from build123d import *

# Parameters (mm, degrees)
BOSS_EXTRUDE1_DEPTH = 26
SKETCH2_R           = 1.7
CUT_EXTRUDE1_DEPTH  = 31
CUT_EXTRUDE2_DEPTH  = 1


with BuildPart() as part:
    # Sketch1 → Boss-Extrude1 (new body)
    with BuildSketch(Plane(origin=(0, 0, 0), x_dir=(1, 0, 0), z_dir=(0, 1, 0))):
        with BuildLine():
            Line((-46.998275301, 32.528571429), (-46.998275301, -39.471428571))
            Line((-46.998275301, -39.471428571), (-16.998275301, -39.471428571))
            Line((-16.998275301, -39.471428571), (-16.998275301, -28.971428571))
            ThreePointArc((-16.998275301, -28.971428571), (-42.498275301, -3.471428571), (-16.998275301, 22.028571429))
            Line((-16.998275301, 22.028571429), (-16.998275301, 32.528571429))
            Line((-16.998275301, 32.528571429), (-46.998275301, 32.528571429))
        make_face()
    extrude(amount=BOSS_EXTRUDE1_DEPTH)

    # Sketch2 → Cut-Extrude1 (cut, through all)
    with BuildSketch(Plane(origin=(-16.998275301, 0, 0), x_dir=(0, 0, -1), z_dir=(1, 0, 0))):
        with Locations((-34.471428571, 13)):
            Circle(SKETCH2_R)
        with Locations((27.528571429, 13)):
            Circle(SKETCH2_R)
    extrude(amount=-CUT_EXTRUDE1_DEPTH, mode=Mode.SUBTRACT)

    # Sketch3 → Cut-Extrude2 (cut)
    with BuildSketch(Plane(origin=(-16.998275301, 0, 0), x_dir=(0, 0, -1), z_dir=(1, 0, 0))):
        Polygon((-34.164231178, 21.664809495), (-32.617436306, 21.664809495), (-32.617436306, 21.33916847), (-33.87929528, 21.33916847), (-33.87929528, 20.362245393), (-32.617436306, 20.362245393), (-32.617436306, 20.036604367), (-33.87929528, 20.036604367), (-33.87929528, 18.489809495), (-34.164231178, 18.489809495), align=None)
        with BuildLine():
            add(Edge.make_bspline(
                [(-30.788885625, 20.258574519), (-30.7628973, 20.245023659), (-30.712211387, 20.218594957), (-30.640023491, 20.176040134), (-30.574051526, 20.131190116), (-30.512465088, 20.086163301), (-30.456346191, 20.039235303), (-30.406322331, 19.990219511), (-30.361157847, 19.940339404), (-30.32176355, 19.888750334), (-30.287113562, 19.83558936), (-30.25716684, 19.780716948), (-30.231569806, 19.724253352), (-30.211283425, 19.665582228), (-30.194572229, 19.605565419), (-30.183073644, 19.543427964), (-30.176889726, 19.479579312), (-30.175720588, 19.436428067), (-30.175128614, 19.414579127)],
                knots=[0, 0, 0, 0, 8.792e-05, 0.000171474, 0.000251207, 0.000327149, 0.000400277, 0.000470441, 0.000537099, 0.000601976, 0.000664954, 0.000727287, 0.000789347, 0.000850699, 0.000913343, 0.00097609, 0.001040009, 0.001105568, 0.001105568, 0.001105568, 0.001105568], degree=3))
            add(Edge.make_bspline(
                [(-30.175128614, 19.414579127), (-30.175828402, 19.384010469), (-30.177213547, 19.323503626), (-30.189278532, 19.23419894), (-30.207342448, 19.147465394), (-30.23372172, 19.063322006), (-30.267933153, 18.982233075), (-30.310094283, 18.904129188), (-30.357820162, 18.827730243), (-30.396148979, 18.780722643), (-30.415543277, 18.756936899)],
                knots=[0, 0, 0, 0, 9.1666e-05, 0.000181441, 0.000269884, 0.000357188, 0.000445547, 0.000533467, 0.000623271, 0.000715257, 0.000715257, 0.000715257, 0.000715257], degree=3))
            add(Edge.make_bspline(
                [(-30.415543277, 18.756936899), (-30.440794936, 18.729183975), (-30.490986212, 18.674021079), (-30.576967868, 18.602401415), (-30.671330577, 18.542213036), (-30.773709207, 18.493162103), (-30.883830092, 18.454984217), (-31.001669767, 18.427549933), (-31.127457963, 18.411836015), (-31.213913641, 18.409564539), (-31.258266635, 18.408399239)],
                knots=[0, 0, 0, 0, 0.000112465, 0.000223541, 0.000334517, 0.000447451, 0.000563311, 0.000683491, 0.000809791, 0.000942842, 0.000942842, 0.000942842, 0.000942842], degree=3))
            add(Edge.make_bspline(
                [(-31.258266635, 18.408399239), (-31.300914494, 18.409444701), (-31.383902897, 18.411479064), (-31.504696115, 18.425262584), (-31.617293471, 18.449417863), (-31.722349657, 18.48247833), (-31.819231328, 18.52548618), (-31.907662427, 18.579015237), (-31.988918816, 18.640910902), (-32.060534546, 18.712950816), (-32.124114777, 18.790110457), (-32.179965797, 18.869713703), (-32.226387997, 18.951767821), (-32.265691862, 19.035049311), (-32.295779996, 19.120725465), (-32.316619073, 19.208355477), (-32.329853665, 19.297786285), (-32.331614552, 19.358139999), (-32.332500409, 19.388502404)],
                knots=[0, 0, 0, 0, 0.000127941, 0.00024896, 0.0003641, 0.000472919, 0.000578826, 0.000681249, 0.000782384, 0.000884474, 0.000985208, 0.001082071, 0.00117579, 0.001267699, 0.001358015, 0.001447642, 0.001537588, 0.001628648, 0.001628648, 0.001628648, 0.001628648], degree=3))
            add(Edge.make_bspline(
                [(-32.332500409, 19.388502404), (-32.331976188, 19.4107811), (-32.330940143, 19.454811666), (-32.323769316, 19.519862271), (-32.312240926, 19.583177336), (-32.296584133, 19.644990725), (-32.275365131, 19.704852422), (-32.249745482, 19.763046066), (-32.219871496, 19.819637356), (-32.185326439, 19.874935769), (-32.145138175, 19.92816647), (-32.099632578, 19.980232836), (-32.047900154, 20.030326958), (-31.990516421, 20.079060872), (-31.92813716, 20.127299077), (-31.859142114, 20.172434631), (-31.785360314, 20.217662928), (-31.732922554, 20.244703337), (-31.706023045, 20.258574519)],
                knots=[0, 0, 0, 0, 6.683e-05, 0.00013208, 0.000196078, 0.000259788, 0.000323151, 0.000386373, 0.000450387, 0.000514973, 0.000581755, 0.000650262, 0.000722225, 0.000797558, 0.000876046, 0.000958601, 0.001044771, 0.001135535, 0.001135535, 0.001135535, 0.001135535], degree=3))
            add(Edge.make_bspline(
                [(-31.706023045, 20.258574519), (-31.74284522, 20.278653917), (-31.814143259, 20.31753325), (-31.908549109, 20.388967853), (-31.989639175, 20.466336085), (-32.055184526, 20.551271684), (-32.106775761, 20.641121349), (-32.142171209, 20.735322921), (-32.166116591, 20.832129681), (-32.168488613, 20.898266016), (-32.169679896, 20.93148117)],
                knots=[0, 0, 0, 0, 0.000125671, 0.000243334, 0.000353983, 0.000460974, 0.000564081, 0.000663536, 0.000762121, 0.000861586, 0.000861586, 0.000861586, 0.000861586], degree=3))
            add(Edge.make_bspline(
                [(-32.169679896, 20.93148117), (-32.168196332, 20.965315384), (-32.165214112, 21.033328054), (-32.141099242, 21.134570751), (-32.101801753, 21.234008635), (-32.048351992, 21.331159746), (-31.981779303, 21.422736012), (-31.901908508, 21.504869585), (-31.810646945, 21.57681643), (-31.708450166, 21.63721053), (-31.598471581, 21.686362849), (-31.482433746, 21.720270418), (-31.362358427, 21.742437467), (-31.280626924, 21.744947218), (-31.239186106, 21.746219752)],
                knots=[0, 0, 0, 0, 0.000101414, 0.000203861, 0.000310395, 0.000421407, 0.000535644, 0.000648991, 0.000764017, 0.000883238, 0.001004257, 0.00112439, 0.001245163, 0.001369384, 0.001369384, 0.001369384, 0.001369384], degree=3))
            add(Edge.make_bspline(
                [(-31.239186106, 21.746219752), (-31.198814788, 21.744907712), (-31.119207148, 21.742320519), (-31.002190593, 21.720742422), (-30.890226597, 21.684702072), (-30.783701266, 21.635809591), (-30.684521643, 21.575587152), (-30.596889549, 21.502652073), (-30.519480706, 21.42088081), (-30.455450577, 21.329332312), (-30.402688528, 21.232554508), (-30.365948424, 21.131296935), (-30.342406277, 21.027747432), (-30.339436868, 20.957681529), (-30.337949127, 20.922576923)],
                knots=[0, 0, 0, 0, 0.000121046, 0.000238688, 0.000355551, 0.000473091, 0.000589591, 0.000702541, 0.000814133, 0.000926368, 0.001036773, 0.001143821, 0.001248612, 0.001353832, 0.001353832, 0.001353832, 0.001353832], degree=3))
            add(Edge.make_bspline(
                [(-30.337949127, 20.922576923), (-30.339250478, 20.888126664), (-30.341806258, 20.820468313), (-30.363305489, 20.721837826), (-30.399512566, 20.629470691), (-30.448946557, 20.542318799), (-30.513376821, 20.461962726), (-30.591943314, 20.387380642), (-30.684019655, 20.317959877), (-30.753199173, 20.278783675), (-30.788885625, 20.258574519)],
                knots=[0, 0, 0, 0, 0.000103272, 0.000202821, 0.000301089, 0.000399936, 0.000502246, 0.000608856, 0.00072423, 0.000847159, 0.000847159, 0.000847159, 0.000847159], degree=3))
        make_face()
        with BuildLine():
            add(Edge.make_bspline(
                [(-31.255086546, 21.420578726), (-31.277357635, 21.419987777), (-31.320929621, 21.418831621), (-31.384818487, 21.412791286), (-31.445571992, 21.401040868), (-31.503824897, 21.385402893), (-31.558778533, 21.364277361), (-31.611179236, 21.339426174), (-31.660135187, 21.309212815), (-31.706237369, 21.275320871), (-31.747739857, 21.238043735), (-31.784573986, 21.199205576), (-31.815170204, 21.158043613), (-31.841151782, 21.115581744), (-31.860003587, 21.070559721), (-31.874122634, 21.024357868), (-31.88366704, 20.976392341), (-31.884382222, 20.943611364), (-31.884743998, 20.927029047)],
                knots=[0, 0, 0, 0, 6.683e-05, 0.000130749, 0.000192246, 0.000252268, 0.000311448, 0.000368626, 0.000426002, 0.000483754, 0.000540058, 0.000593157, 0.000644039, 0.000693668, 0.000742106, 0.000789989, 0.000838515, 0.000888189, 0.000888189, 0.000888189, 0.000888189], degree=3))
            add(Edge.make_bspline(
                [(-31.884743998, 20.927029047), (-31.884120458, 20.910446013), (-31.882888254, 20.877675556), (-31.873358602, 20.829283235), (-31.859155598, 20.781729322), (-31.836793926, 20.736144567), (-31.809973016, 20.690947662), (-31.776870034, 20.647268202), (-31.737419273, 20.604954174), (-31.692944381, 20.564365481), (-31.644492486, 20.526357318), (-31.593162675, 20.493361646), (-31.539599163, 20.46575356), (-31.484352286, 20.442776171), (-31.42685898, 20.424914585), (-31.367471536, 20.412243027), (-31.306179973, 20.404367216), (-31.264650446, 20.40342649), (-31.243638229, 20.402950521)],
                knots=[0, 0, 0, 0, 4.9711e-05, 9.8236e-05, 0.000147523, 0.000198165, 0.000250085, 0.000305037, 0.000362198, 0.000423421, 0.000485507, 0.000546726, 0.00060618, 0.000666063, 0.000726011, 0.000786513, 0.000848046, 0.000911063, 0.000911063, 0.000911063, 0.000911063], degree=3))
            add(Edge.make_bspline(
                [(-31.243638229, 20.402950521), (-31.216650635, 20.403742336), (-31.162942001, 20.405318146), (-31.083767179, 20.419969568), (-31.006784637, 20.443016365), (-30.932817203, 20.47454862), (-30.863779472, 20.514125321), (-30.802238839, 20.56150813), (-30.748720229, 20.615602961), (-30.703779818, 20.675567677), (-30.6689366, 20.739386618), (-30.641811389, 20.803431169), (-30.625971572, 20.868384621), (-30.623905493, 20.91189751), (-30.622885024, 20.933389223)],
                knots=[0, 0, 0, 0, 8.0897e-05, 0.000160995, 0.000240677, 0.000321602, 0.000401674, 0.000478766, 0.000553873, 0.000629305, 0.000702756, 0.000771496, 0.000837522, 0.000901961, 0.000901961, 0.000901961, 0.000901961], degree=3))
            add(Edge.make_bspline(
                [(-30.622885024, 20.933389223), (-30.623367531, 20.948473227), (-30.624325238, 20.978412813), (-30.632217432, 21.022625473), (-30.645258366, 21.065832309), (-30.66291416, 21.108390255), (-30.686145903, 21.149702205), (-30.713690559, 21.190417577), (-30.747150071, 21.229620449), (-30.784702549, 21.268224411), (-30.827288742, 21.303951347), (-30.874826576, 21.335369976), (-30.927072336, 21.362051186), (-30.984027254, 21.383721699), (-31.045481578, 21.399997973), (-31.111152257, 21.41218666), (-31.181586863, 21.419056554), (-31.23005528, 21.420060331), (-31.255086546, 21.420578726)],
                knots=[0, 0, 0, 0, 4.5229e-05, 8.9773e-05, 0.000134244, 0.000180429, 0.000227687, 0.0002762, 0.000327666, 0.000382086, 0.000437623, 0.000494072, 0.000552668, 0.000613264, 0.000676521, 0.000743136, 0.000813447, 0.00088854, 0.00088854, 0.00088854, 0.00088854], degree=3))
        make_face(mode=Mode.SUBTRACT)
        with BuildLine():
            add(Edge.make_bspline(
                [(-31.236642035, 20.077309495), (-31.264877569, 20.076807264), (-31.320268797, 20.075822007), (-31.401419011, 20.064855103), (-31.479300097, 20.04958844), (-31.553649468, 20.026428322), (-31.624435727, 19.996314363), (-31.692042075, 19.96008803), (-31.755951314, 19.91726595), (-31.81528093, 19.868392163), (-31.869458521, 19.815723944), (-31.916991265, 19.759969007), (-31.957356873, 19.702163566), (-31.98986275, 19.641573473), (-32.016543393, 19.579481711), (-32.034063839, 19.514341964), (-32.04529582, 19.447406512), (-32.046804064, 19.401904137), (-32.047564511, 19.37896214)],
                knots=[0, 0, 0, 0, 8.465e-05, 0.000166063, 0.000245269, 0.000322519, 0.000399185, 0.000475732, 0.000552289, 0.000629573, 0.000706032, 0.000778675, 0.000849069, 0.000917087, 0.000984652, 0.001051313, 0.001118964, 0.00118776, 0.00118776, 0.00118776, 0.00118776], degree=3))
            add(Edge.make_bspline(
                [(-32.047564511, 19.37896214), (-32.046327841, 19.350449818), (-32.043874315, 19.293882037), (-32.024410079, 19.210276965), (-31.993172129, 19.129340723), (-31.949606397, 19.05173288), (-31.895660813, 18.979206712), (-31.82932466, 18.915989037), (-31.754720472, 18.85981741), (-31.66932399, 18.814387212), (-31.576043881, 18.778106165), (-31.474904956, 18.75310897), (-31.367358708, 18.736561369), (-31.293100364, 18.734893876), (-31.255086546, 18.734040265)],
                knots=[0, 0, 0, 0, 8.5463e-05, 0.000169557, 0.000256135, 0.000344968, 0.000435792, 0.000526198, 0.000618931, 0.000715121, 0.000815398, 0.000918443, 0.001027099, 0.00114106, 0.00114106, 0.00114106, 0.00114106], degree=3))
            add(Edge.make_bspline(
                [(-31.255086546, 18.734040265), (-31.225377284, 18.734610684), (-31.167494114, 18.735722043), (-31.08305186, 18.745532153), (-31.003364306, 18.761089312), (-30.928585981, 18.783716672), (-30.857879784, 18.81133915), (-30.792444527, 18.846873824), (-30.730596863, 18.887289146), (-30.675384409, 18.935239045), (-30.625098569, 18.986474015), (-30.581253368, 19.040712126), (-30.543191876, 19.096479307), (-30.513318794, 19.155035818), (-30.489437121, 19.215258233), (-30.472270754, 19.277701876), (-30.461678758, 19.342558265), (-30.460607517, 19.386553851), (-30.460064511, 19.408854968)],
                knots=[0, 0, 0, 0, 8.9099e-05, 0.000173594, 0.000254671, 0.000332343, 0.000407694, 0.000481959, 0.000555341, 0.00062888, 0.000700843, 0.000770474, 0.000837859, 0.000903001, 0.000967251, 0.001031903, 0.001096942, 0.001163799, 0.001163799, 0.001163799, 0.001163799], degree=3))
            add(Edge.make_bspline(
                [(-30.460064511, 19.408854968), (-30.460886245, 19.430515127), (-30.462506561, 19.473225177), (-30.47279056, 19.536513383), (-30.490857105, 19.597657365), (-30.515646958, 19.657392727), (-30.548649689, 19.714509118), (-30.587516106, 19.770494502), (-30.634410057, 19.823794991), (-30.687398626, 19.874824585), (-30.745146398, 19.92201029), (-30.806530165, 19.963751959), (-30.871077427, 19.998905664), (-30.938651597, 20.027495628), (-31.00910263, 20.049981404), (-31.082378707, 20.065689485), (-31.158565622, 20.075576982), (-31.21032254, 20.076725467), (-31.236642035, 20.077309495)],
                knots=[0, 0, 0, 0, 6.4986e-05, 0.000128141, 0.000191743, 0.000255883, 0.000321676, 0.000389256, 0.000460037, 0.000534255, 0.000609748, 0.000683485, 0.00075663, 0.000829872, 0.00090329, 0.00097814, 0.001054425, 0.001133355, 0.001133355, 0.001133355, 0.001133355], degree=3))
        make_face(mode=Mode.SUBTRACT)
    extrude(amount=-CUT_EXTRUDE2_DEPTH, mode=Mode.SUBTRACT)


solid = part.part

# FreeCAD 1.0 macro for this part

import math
import FreeCAD as App
import Part
import Sketcher


def add_polygon(sketch, points):
    """Adds a closed chain of lines whose ends are joined by coincident constraints."""
    first, n = sketch.GeometryCount, len(points)
    for a, b in zip(points, points[1:] + points[:1]):
        sketch.addGeometry(Part.LineSegment(App.Vector(*a, 0), App.Vector(*b, 0)), False)
    for i in range(n):
        sketch.addConstraint(Sketcher.Constraint("Coincident", first + i, 2, first + (i + 1) % n, 1))

doc = App.newDocument("Part")
body = doc.addObject("PartDesign::Body", "Body")

# Sketch on XZ plane
sketch1 = body.newObject("Sketcher::SketchObject", "Sketch")
sketch1.AttachmentSupport = (doc.getObject("XZ_Plane"), [""])
sketch1.MapMode = "FlatFace"
sketch1.addGeometry(Part.LineSegment(App.Vector(-47, -33, 0), App.Vector(-47, 39, 0)), False)
sketch1.addGeometry(Part.LineSegment(App.Vector(-47, 39, 0), App.Vector(-17, 39, 0)), False)
sketch1.addGeometry(Part.LineSegment(App.Vector(-17, 39, 0), App.Vector(-17, 29, 0)), False)
sketch1.addGeometry(Part.ArcOfCircle(Part.Circle(App.Vector(-17, 3, 0), App.Vector(0, 0, 1), 26), math.radians(90), math.radians(270)), False)
sketch1.addGeometry(Part.LineSegment(App.Vector(-17, -22, 0), App.Vector(-17, -33, 0)), False)
sketch1.addGeometry(Part.LineSegment(App.Vector(-17, -33, 0), App.Vector(-47, -33, 0)), False)
sketch1.addConstraint(Sketcher.Constraint("Coincident", 0, 2, 1, 1))
sketch1.addConstraint(Sketcher.Constraint("Coincident", 1, 2, 2, 1))
sketch1.addConstraint(Sketcher.Constraint("Coincident", 2, 2, 3, 1))
sketch1.addConstraint(Sketcher.Constraint("Coincident", 3, 2, 4, 1))
sketch1.addConstraint(Sketcher.Constraint("Coincident", 4, 2, 5, 1))
sketch1.addConstraint(Sketcher.Constraint("Coincident", 5, 2, 0, 1))
sketch1.addConstraint(Sketcher.Constraint("Vertical", 0))
sketch1.addConstraint(Sketcher.Constraint("Horizontal", 1))
sketch1.addConstraint(Sketcher.Constraint("Vertical", 2))
sketch1.addConstraint(Sketcher.Constraint("Vertical", 4))
sketch1.addConstraint(Sketcher.Constraint("Horizontal", 5))
sketch1.addConstraint(Sketcher.Constraint("Vertical", 3, 3, 1, 2))
sketch1.addConstraint(Sketcher.Constraint("Vertical", 2, 2, 3, 2))
sketch1.addConstraint(Sketcher.Constraint("Equal", 2, 4))
sketch1.addConstraint(Sketcher.Constraint("Radius", 3, 25.5))
sketch1.addConstraint(Sketcher.Constraint("DistanceX", 1, 1, 1, 2, 30.0))
sketch1.addConstraint(Sketcher.Constraint("DistanceY", 0, 1, 0, 2, 72.0))
sketch1.addConstraint(Sketcher.Constraint("DistanceY", -1, 1, 3, 3, 3.471429))
sketch1.addConstraint(Sketcher.Constraint("DistanceX", 3, 3, -1, 1, 16.998275))
pad1 = body.newObject("PartDesign::Pad", "Pad")
pad1.Profile = sketch1
pad1.Length = 26
pad1.Reversed = True

# Sketch on YZ plane
sketch2 = body.newObject("Sketcher::SketchObject", "Sketch001")
sketch2.AttachmentSupport = (doc.getObject("YZ_Plane"), [""])
sketch2.MapMode = "FlatFace"
sketch2.AttachmentOffset = App.Placement(App.Vector(0, 0, -16.998275), App.Rotation())
sketch2.addGeometry(Part.Circle(App.Vector(13, 34.5, 0), App.Vector(0, 0, 1), 1.7), False)
sketch2.addGeometry(Part.Circle(App.Vector(13, -27.5, 0), App.Vector(0, 0, 1), 1.7), False)
sketch2.addConstraint(Sketcher.Constraint("Equal", 0, 1))
sketch2.addConstraint(Sketcher.Constraint("Vertical", 0, 3, 1, 3))
sketch2.addConstraint(Sketcher.Constraint("Diameter", 0, 3.4))
sketch2.addConstraint(Sketcher.Constraint("DistanceX", -1, 1, 0, 3, 13.0))
sketch2.addConstraint(Sketcher.Constraint("DistanceY", 1, 3, 0, 3, 62.0))
sketch2.addConstraint(Sketcher.Constraint("DistanceY", -1, 1, 0, 3, 34.471429))
pocket1 = body.newObject("PartDesign::Pocket", "Pocket")
pocket1.Profile = sketch2
pocket1.Type = "ThroughAll"

# Sketch on YZ plane
sketch3 = body.newObject("Sketcher::SketchObject", "Sketch002")
sketch3.AttachmentSupport = (doc.getObject("YZ_Plane"), [""])
sketch3.MapMode = "FlatFace"
sketch3.AttachmentOffset = App.Placement(App.Vector(0, 0, -16.998275), App.Rotation())
add_polygon(sketch3, [(21.664809, 32.617436), (21.664809, 34.164231), (18.489809, 34.164231), (18.489809, 33.879295), (20.036604, 33.879295), (20.036604, 32.617436), (20.362245, 32.617436), (20.362245, 33.879295), (21.339168, 33.879295), (21.339168, 32.617436)])  # lines 0-9
sketch3.addGeometry(Part.BSplineCurve([App.Vector(20.258575, 30.788886, 0), App.Vector(20.245024, 30.762897, 0), App.Vector(20.218595, 30.712211, 0), App.Vector(20.17604, 30.640023, 0), App.Vector(20.13119, 30.574052, 0), App.Vector(20.086163, 30.512465, 0), App.Vector(20.039235, 30.456346, 0), App.Vector(19.99022, 30.406322, 0), App.Vector(19.940339, 30.361158, 0), App.Vector(19.88875, 30.321764, 0), App.Vector(19.835589, 30.287114, 0), App.Vector(19.780717, 30.257167, 0), App.Vector(19.724253, 30.23157, 0), App.Vector(19.665582, 30.211283, 0), App.Vector(19.605565, 30.194572, 0), App.Vector(19.543428, 30.183074, 0), App.Vector(19.479579, 30.17689, 0), App.Vector(19.436428, 30.175721, 0), App.Vector(19.414579, 30.175129, 0)], [4, 1, 1, 1, 1, 1, 1, 1, 1, 1, 1, 1, 1, 1, 1, 1, 4], [0, 0.00008792, 0.000171474, 0.000251207, 0.000327149, 0.000400277, 0.000470441, 0.000537099, 0.000601976, 0.000664954, 0.000727287, 0.000789347, 0.000850699, 0.000913343, 0.00097609, 0.001040009, 0.001105568], False, 3, [1, 1, 1, 1, 1, 1, 1, 1, 1, 1, 1, 1, 1, 1, 1, 1, 1, 1, 1], False), False)  # 10
sketch3.addGeometry(Part.BSplineCurve([App.Vector(20.922577, 30.337949, 0), App.Vector(20.888127, 30.33925, 0), App.Vector(20.820468, 30.341806, 0), App.Vector(20.721838, 30.363305, 0), App.Vector(20.629471, 30.399513, 0), App.Vector(20.542319, 30.448947, 0), App.Vector(20.461963, 30.513377, 0), App.Vector(20.387381, 30.591943, 0), App.Vector(20.31796, 30.68402, 0), App.Vector(20.278784, 30.753199, 0), App.Vector(20.258575, 30.788886, 0)], [4, 1, 1, 1, 1, 1, 1, 1, 4], [0, 0.000103272, 0.000202821, 0.000301089, 0.000399936, 0.000502246, 0.000608856, 0.00072423, 0.000847159], False, 3, [1, 1, 1, 1, 1, 1, 1, 1, 1, 1, 1], False), False)  # 11
sketch3.addGeometry(Part.BSplineCurve([App.Vector(21.74622, 31.239186, 0), App.Vector(21.744908, 31.198815, 0), App.Vector(21.742321, 31.119207, 0), App.Vector(21.720742, 31.002191, 0), App.Vector(21.684702, 30.890227, 0), App.Vector(21.63581, 30.783701, 0), App.Vector(21.575587, 30.684522, 0), App.Vector(21.502652, 30.59689, 0), App.Vector(21.420881, 30.519481, 0), App.Vector(21.329332, 30.455451, 0), App.Vector(21.232555, 30.402689, 0), App.Vector(21.131297, 30.365948, 0), App.Vector(21.027747, 30.342406, 0), App.Vector(20.957682, 30.339437, 0), App.Vector(20.922577, 30.337949, 0)], [4, 1, 1, 1, 1, 1, 1, 1, 1, 1, 1, 1, 4], [0, 0.000121046, 0.000238688, 0.000355551, 0.000473091, 0.000589591, 0.000702541, 0.000814133, 0.000926368, 0.001036773, 0.001143821, 0.001248612, 0.001353832], False, 3, [1, 1, 1, 1, 1, 1, 1, 1, 1, 1, 1, 1, 1, 1, 1], False), False)  # 12
sketch3.addGeometry(Part.BSplineCurve([App.Vector(20.931481, 32.16968, 0), App.Vector(20.965315, 32.168196, 0), App.Vector(21.033328, 32.165214, 0), App.Vector(21.134571, 32.141099, 0), App.Vector(21.234009, 32.101802, 0), App.Vector(21.33116, 32.048352, 0), App.Vector(21.422736, 31.981779, 0), App.Vector(21.50487, 31.901909, 0), App.Vector(21.576816, 31.810647, 0), App.Vector(21.637211, 31.70845, 0), App.Vector(21.686363, 31.598472, 0), App.Vector(21.72027, 31.482434, 0), App.Vector(21.742437, 31.362358, 0), App.Vector(21.744947, 31.280627, 0), App.Vector(21.74622, 31.239186, 0)], [4, 1, 1, 1, 1, 1, 1, 1, 1, 1, 1, 1, 4], [0, 0.000101414, 0.000203861, 0.000310395, 0.000421407, 0.000535644, 0.000648991, 0.000764017, 0.000883238, 0.001004257, 0.00112439, 0.001245163, 0.001369384], False, 3, [1, 1, 1, 1, 1, 1, 1, 1, 1, 1, 1, 1, 1, 1, 1], False), False)  # 13
sketch3.addGeometry(Part.BSplineCurve([App.Vector(20.258575, 31.706023, 0), App.Vector(20.278654, 31.742845, 0), App.Vector(20.317533, 31.814143, 0), App.Vector(20.388968, 31.908549, 0), App.Vector(20.466336, 31.989639, 0), App.Vector(20.551272, 32.055185, 0), App.Vector(20.641121, 32.106776, 0), App.Vector(20.735323, 32.142171, 0), App.Vector(20.83213, 32.166117, 0), App.Vector(20.898266, 32.168489, 0), App.Vector(20.931481, 32.16968, 0)], [4, 1, 1, 1, 1, 1, 1, 1, 4], [0, 0.000125671, 0.000243334, 0.000353983, 0.000460974, 0.000564081, 0.000663536, 0.000762121, 0.000861586], False, 3, [1, 1, 1, 1, 1, 1, 1, 1, 1, 1, 1], False), False)  # 14
sketch3.addGeometry(Part.BSplineCurve([App.Vector(19.388502, 32.3325, 0), App.Vector(19.410781, 32.331976, 0), App.Vector(19.454812, 32.33094, 0), App.Vector(19.519862, 32.323769, 0), App.Vector(19.583177, 32.312241, 0), App.Vector(19.644991, 32.296584, 0), App.Vector(19.704852, 32.275365, 0), App.Vector(19.763046, 32.249745, 0), App.Vector(19.819637, 32.219871, 0), App.Vector(19.874936, 32.185326, 0), App.Vector(19.928166, 32.145138, 0), App.Vector(19.980233, 32.099633, 0), App.Vector(20.030327, 32.0479, 0), App.Vector(20.079061, 31.990516, 0), App.Vector(20.127299, 31.928137, 0), App.Vector(20.172435, 31.859142, 0), App.Vector(20.217663, 31.78536, 0), App.Vector(20.244703, 31.732923, 0), App.Vector(20.258575, 31.706023, 0)], [4, 1, 1, 1, 1, 1, 1, 1, 1, 1, 1, 1, 1, 1, 1, 1, 4], [0, 0.00006683, 0.00013208, 0.000196078, 0.000259788, 0.000323151, 0.000386373, 0.000450387, 0.000514973, 0.000581755, 0.000650262, 0.000722225, 0.000797558, 0.000876046, 0.000958601, 0.001044771, 0.001135535], False, 3, [1, 1, 1, 1, 1, 1, 1, 1, 1, 1, 1, 1, 1, 1, 1, 1, 1, 1, 1], False), False)  # 15
sketch3.addGeometry(Part.BSplineCurve([App.Vector(18.408399, 31.258267, 0), App.Vector(18.409445, 31.300914, 0), App.Vector(18.411479, 31.383903, 0), App.Vector(18.425263, 31.504696, 0), App.Vector(18.449418, 31.617293, 0), App.Vector(18.482478, 31.72235, 0), App.Vector(18.525486, 31.819231, 0), App.Vector(18.579015, 31.907662, 0), App.Vector(18.640911, 31.988919, 0), App.Vector(18.712951, 32.060535, 0), App.Vector(18.79011, 32.124115, 0), App.Vector(18.869714, 32.179966, 0), App.Vector(18.951768, 32.226388, 0), App.Vector(19.035049, 32.265692, 0), App.Vector(19.120725, 32.29578, 0), App.Vector(19.208355, 32.316619, 0), App.Vector(19.297786, 32.329854, 0), App.Vector(19.35814, 32.331615, 0), App.Vector(19.388502, 32.3325, 0)], [4, 1, 1, 1, 1, 1, 1, 1, 1, 1, 1, 1, 1, 1, 1, 1, 4], [0, 0.000127941, 0.00024896, 0.0003641, 0.000472919, 0.000578826, 0.000681249, 0.000782384, 0.000884474, 0.000985208, 0.001082071, 0.00117579, 0.001267699, 0.001358015, 0.001447642, 0.001537588, 0.001628648], False, 3, [1, 1, 1, 1, 1, 1, 1, 1, 1, 1, 1, 1, 1, 1, 1, 1, 1, 1, 1], False), False)  # 16
sketch3.addGeometry(Part.BSplineCurve([App.Vector(18.756937, 30.415543, 0), App.Vector(18.729184, 30.440795, 0), App.Vector(18.674021, 30.490986, 0), App.Vector(18.602401, 30.576968, 0), App.Vector(18.542213, 30.671331, 0), App.Vector(18.493162, 30.773709, 0), App.Vector(18.454984, 30.88383, 0), App.Vector(18.42755, 31.00167, 0), App.Vector(18.411836, 31.127458, 0), App.Vector(18.409565, 31.213914, 0), App.Vector(18.408399, 31.258267, 0)], [4, 1, 1, 1, 1, 1, 1, 1, 4], [0, 0.000112465, 0.000223541, 0.000334517, 0.000447451, 0.000563311, 0.000683491, 0.000809791, 0.000942842], False, 3, [1, 1, 1, 1, 1, 1, 1, 1, 1, 1, 1], False), False)  # 17
sketch3.addGeometry(Part.BSplineCurve([App.Vector(19.414579, 30.175129, 0), App.Vector(19.38401, 30.175828, 0), App.Vector(19.323504, 30.177214, 0), App.Vector(19.234199, 30.189279, 0), App.Vector(19.147465, 30.207342, 0), App.Vector(19.063322, 30.233722, 0), App.Vector(18.982233, 30.267933, 0), App.Vector(18.904129, 30.310094, 0), App.Vector(18.82773, 30.35782, 0), App.Vector(18.780723, 30.396149, 0), App.Vector(18.756937, 30.415543, 0)], [4, 1, 1, 1, 1, 1, 1, 1, 4], [0, 0.000091666, 0.000181441, 0.000269884, 0.000357188, 0.000445547, 0.000533467, 0.000623271, 0.000715257], False, 3, [1, 1, 1, 1, 1, 1, 1, 1, 1, 1, 1], False), False)  # 18
sketch3.addGeometry(Part.BSplineCurve([App.Vector(19.408855, 30.460065, 0), App.Vector(19.430515, 30.460886, 0), App.Vector(19.473225, 30.462507, 0), App.Vector(19.536513, 30.472791, 0), App.Vector(19.597657, 30.490857, 0), App.Vector(19.657393, 30.515647, 0), App.Vector(19.714509, 30.54865, 0), App.Vector(19.770495, 30.587516, 0), App.Vector(19.823795, 30.63441, 0), App.Vector(19.874825, 30.687399, 0), App.Vector(19.92201, 30.745146, 0), App.Vector(19.963752, 30.80653, 0), App.Vector(19.998906, 30.871077, 0), App.Vector(20.027496, 30.938652, 0), App.Vector(20.049981, 31.009103, 0), App.Vector(20.065689, 31.082379, 0), App.Vector(20.075577, 31.158566, 0), App.Vector(20.076725, 31.210323, 0), App.Vector(20.077309, 31.236642, 0)], [4, 1, 1, 1, 1, 1, 1, 1, 1, 1, 1, 1, 1, 1, 1, 1, 4], [0, 0.000064986, 0.000128141, 0.000191743, 0.000255883, 0.000321676, 0.000389256, 0.000460037, 0.000534255, 0.000609748, 0.000683485, 0.00075663, 0.000829872, 0.00090329, 0.00097814, 0.001054425, 0.001133355], False, 3, [1, 1, 1, 1, 1, 1, 1, 1, 1, 1, 1, 1, 1, 1, 1, 1, 1, 1, 1], False), False)  # 19
sketch3.addGeometry(Part.BSplineCurve([App.Vector(18.73404, 31.255087, 0), App.Vector(18.734611, 31.225377, 0), App.Vector(18.735722, 31.167494, 0), App.Vector(18.745532, 31.083052, 0), App.Vector(18.761089, 31.003364, 0), App.Vector(18.783717, 30.928586, 0), App.Vector(18.811339, 30.85788, 0), App.Vector(18.846874, 30.792445, 0), App.Vector(18.887289, 30.730597, 0), App.Vector(18.935239, 30.675384, 0), App.Vector(18.986474, 30.625099, 0), App.Vector(19.040712, 30.581253, 0), App.Vector(19.096479, 30.543192, 0), App.Vector(19.155036, 30.513319, 0), App.Vector(19.215258, 30.489437, 0), App.Vector(19.277702, 30.472271, 0), App.Vector(19.342558, 30.461679, 0), App.Vector(19.386554, 30.460608, 0), App.Vector(19.408855, 30.460065, 0)], [4, 1, 1, 1, 1, 1, 1, 1, 1, 1, 1, 1, 1, 1, 1, 1, 4], [0, 0.000089099, 0.000173594, 0.000254671, 0.000332343, 0.000407694, 0.000481959, 0.000555341, 0.00062888, 0.000700843, 0.000770474, 0.000837859, 0.000903001, 0.000967251, 0.001031903, 0.001096942, 0.001163799], False, 3, [1, 1, 1, 1, 1, 1, 1, 1, 1, 1, 1, 1, 1, 1, 1, 1, 1, 1, 1], False), False)  # 20
sketch3.addGeometry(Part.BSplineCurve([App.Vector(19.378962, 32.047565, 0), App.Vector(19.35045, 32.046328, 0), App.Vector(19.293882, 32.043874, 0), App.Vector(19.210277, 32.02441, 0), App.Vector(19.129341, 31.993172, 0), App.Vector(19.051733, 31.949606, 0), App.Vector(18.979207, 31.895661, 0), App.Vector(18.915989, 31.829325, 0), App.Vector(18.859817, 31.75472, 0), App.Vector(18.814387, 31.669324, 0), App.Vector(18.778106, 31.576044, 0), App.Vector(18.753109, 31.474905, 0), App.Vector(18.736561, 31.367359, 0), App.Vector(18.734894, 31.2931, 0), App.Vector(18.73404, 31.255087, 0)], [4, 1, 1, 1, 1, 1, 1, 1, 1, 1, 1, 1, 4], [0, 0.000085463, 0.000169557, 0.000256135, 0.000344968, 0.000435792, 0.000526198, 0.000618931, 0.000715121, 0.000815398, 0.000918443, 0.001027099, 0.00114106], False, 3, [1, 1, 1, 1, 1, 1, 1, 1, 1, 1, 1, 1, 1, 1, 1], False), False)  # 21
sketch3.addGeometry(Part.BSplineCurve([App.Vector(20.077309, 31.236642, 0), App.Vector(20.076807, 31.264878, 0), App.Vector(20.075822, 31.320269, 0), App.Vector(20.064855, 31.401419, 0), App.Vector(20.049588, 31.4793, 0), App.Vector(20.026428, 31.553649, 0), App.Vector(19.996314, 31.624436, 0), App.Vector(19.960088, 31.692042, 0), App.Vector(19.917266, 31.755951, 0), App.Vector(19.868392, 31.815281, 0), App.Vector(19.815724, 31.869459, 0), App.Vector(19.759969, 31.916991, 0), App.Vector(19.702164, 31.957357, 0), App.Vector(19.641573, 31.989863, 0), App.Vector(19.579482, 32.016543, 0), App.Vector(19.514342, 32.034064, 0), App.Vector(19.447407, 32.045296, 0), App.Vector(19.401904, 32.046804, 0), App.Vector(19.378962, 32.047565, 0)], [4, 1, 1, 1, 1, 1, 1, 1, 1, 1, 1, 1, 1, 1, 1, 1, 4], [0, 0.00008465, 0.000166063, 0.000245269, 0.000322519, 0.000399185, 0.000475732, 0.000552289, 0.000629573, 0.000706032, 0.000778675, 0.000849069, 0.000917087, 0.000984652, 0.001051313, 0.001118964, 0.00118776], False, 3, [1, 1, 1, 1, 1, 1, 1, 1, 1, 1, 1, 1, 1, 1, 1, 1, 1, 1, 1], False), False)  # 22
sketch3.addGeometry(Part.BSplineCurve([App.Vector(20.933389, 30.622885, 0), App.Vector(20.948473, 30.623368, 0), App.Vector(20.978413, 30.624325, 0), App.Vector(21.022625, 30.632217, 0), App.Vector(21.065832, 30.645258, 0), App.Vector(21.10839, 30.662914, 0), App.Vector(21.149702, 30.686146, 0), App.Vector(21.190418, 30.713691, 0), App.Vector(21.22962, 30.74715, 0), App.Vector(21.268224, 30.784703, 0), App.Vector(21.303951, 30.827289, 0), App.Vector(21.33537, 30.874827, 0), App.Vector(21.362051, 30.927072, 0), App.Vector(21.383722, 30.984027, 0), App.Vector(21.399998, 31.045482, 0), App.Vector(21.412187, 31.111152, 0), App.Vector(21.419057, 31.181587, 0), App.Vector(21.42006, 31.230055, 0), App.Vector(21.420579, 31.255087, 0)], [4, 1, 1, 1, 1, 1, 1, 1, 1, 1, 1, 1, 1, 1, 1, 1, 4], [0, 0.000045229, 0.000089773, 0.000134244, 0.000180429, 0.000227687, 0.0002762, 0.000327666, 0.000382086, 0.000437623, 0.000494072, 0.000552668, 0.000613264, 0.000676521, 0.000743136, 0.000813447, 0.00088854], False, 3, [1, 1, 1, 1, 1, 1, 1, 1, 1, 1, 1, 1, 1, 1, 1, 1, 1, 1, 1], False), False)  # 23
sketch3.addGeometry(Part.BSplineCurve([App.Vector(20.402951, 31.243638, 0), App.Vector(20.403742, 31.216651, 0), App.Vector(20.405318, 31.162942, 0), App.Vector(20.41997, 31.083767, 0), App.Vector(20.443016, 31.006785, 0), App.Vector(20.474549, 30.932817, 0), App.Vector(20.514125, 30.863779, 0), App.Vector(20.561508, 30.802239, 0), App.Vector(20.615603, 30.74872, 0), App.Vector(20.675568, 30.70378, 0), App.Vector(20.739387, 30.668937, 0), App.Vector(20.803431, 30.641811, 0), App.Vector(20.868385, 30.625972, 0), App.Vector(20.911898, 30.623905, 0), App.Vector(20.933389, 30.622885, 0)], [4, 1, 1, 1, 1, 1, 1, 1, 1, 1, 1, 1, 4], [0, 0.000080897, 0.000160995, 0.000240677, 0.000321602, 0.000401674, 0.000478766, 0.000553873, 0.000629305, 0.000702756, 0.000771496, 0.000837522, 0.000901961], False, 3, [1, 1, 1, 1, 1, 1, 1, 1, 1, 1, 1, 1, 1, 1, 1], False), False)  # 24
sketch3.addGeometry(Part.BSplineCurve([App.Vector(20.927029, 31.884744, 0), App.Vector(20.910446, 31.88412, 0), App.Vector(20.877676, 31.882888, 0), App.Vector(20.829283, 31.873359, 0), App.Vector(20.781729, 31.859156, 0), App.Vector(20.736145, 31.836794, 0), App.Vector(20.690948, 31.809973, 0), App.Vector(20.647268, 31.77687, 0), App.Vector(20.604954, 31.737419, 0), App.Vector(20.564365, 31.692944, 0), App.Vector(20.526357, 31.644492, 0), App.Vector(20.493362, 31.593163, 0), App.Vector(20.465754, 31.539599, 0), App.Vector(20.442776, 31.484352, 0), App.Vector(20.424915, 31.426859, 0), App.Vector(20.412243, 31.367472, 0), App.Vector(20.404367, 31.30618, 0), App.Vector(20.403426, 31.26465, 0), App.Vector(20.402951, 31.243638, 0)], [4, 1, 1, 1, 1, 1, 1, 1, 1, 1, 1, 1, 1, 1, 1, 1, 4], [0, 0.000049711, 0.000098236, 0.000147523, 0.000198165, 0.000250085, 0.000305037, 0.000362198, 0.000423421, 0.000485507, 0.000546726, 0.00060618, 0.000666063, 0.000726011, 0.000786513, 0.000848046, 0.000911063], False, 3, [1, 1, 1, 1, 1, 1, 1, 1, 1, 1, 1, 1, 1, 1, 1, 1, 1, 1, 1], False), False)  # 25
sketch3.addGeometry(Part.BSplineCurve([App.Vector(21.420579, 31.255087, 0), App.Vector(21.419988, 31.277358, 0), App.Vector(21.418832, 31.32093, 0), App.Vector(21.412791, 31.384818, 0), App.Vector(21.401041, 31.445572, 0), App.Vector(21.385403, 31.503825, 0), App.Vector(21.364277, 31.558779, 0), App.Vector(21.339426, 31.611179, 0), App.Vector(21.309213, 31.660135, 0), App.Vector(21.275321, 31.706237, 0), App.Vector(21.238044, 31.74774, 0), App.Vector(21.199206, 31.784574, 0), App.Vector(21.158044, 31.81517, 0), App.Vector(21.115582, 31.841152, 0), App.Vector(21.07056, 31.860004, 0), App.Vector(21.024358, 31.874123, 0), App.Vector(20.976392, 31.883667, 0), App.Vector(20.943611, 31.884382, 0), App.Vector(20.927029, 31.884744, 0)], [4, 1, 1, 1, 1, 1, 1, 1, 1, 1, 1, 1, 1, 1, 1, 1, 4], [0, 0.00006683, 0.000130749, 0.000192246, 0.000252268, 0.000311448, 0.000368626, 0.000426002, 0.000483754, 0.000540058, 0.000593157, 0.000644039, 0.000693668, 0.000742106, 0.000789989, 0.000838515, 0.000888189], False, 3, [1, 1, 1, 1, 1, 1, 1, 1, 1, 1, 1, 1, 1, 1, 1, 1, 1, 1, 1], False), False)  # 26
sketch3.addConstraint(Sketcher.Constraint("Block", 10))
sketch3.addConstraint(Sketcher.Constraint("Block", 11))
sketch3.addConstraint(Sketcher.Constraint("Block", 12))
sketch3.addConstraint(Sketcher.Constraint("Block", 13))
sketch3.addConstraint(Sketcher.Constraint("Block", 14))
sketch3.addConstraint(Sketcher.Constraint("Block", 15))
sketch3.addConstraint(Sketcher.Constraint("Block", 16))
sketch3.addConstraint(Sketcher.Constraint("Block", 17))
sketch3.addConstraint(Sketcher.Constraint("Block", 18))
sketch3.addConstraint(Sketcher.Constraint("Block", 19))
sketch3.addConstraint(Sketcher.Constraint("Block", 20))
sketch3.addConstraint(Sketcher.Constraint("Block", 21))
sketch3.addConstraint(Sketcher.Constraint("Block", 22))
sketch3.addConstraint(Sketcher.Constraint("Block", 23))
sketch3.addConstraint(Sketcher.Constraint("Block", 24))
sketch3.addConstraint(Sketcher.Constraint("Block", 25))
sketch3.addConstraint(Sketcher.Constraint("Block", 26))
sketch3.addConstraint(Sketcher.Constraint("Vertical", 0))
sketch3.addConstraint(Sketcher.Constraint("Horizontal", 1))
sketch3.addConstraint(Sketcher.Constraint("Vertical", 2))
sketch3.addConstraint(Sketcher.Constraint("Horizontal", 3))
sketch3.addConstraint(Sketcher.Constraint("Vertical", 4))
sketch3.addConstraint(Sketcher.Constraint("Horizontal", 5))
sketch3.addConstraint(Sketcher.Constraint("Vertical", 6))
sketch3.addConstraint(Sketcher.Constraint("Horizontal", 7))
sketch3.addConstraint(Sketcher.Constraint("Vertical", 8))
sketch3.addConstraint(Sketcher.Constraint("Horizontal", 9))
sketch3.addConstraint(Sketcher.Constraint("Horizontal", 3, 2, 6, 2))
sketch3.addConstraint(Sketcher.Constraint("Horizontal", 5, 2, 8, 2))
sketch3.addConstraint(Sketcher.Constraint("Equal", 5, 9))
sketch3.addConstraint(Sketcher.Constraint("Equal", 3, 0))
sketch3.addConstraint(Sketcher.Constraint("DistanceX", 1, 2, 1, 1, 3.175))
sketch3.addConstraint(Sketcher.Constraint("DistanceX", 5, 1, 5, 2, 0.325641))
sketch3.addConstraint(Sketcher.Constraint("DistanceY", 4, 2, 4, 1, 1.261859))
sketch3.addConstraint(Sketcher.Constraint("DistanceX", 3, 1, 3, 2, 1.546795))
sketch3.addConstraint(Sketcher.Constraint("DistanceX", -1, 1, 0, 2, 21.664809))
sketch3.addConstraint(Sketcher.Constraint("DistanceY", -1, 1, 0, 2, 34.164231))
pocket2 = body.newObject("PartDesign::Pocket", "Pocket001")
pocket2.Profile = sketch3
pocket2.Length = 1

doc.recompute()
